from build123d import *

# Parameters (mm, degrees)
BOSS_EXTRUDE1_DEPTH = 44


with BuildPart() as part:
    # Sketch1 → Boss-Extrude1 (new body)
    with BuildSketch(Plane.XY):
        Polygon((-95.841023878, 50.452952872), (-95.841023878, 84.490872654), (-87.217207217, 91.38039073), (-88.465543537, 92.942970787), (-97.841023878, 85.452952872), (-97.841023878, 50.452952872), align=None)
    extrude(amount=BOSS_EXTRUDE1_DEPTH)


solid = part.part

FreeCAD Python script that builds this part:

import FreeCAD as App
import Part
import Sketcher

V = App.Vector
Q = App.Units.Quantity

doc = App.newDocument("Part")
params = doc.addObject("Spreadsheet::Sheet", "Params")
for row, (alias, value) in enumerate([
    ("sketch1_width", "2 mm"),
    ("sketch1_height", "35 mm"),
    ("sketch1_length", "2 mm"),
    ("sketch1_length2", "12 mm"),
    ("pad1_length", "44 mm"),
], start=1):
    params.set(f"A{row}", alias)
    params.set(f"B{row}", "=" + value)
    params.setAlias(f"B{row}", alias)

body = doc.addObject("PartDesign::Body", "Body")

# Sketch on XY plane
sketch1 = body.newObject("Sketcher::SketchObject", "Sketch")
sketch1.AttachmentSupport = (doc.getObject("XY_Plane"), [""])
sketch1.MapMode = "FlatFace"
sketch1.addGeometry(Part.LineSegment(V(-95.8, 50.5, 0), V(-95.8, 84.5, 0)), False)
sketch1.addGeometry(Part.LineSegment(V(-95.8, 84.5, 0), V(-87.2, 91.4, 0)), False)
sketch1.addGeometry(Part.LineSegment(V(-87.2, 91.4, 0), V(-88.5, 92.9, 0)), False)
sketch1.addGeometry(Part.LineSegment(V(-88.5, 92.9, 0), V(-97.8, 85.5, 0)), False)
sketch1.addGeometry(Part.LineSegment(V(-97.8, 85.5, 0), V(-97.8, 50.5, 0)), False)
sketch1.addGeometry(Part.LineSegment(V(-97.8, 50.5, 0), V(-95.8, 50.5, 0)), False)
sketch1.addConstraint(Sketcher.Constraint("Coincident", 0, 2, 1, 1))
sketch1.addConstraint(Sketcher.Constraint("Coincident", 1, 2, 2, 1))
sketch1.addConstraint(Sketcher.Constraint("Coincident", 2, 2, 3, 1))
sketch1.addConstraint(Sketcher.Constraint("Coincident", 3, 2, 4, 1))
sketch1.addConstraint(Sketcher.Constraint("Coincident", 4, 2, 5, 1))
sketch1.addConstraint(Sketcher.Constraint("Coincident", 5, 2, 0, 1))
sketch1.addConstraint(Sketcher.Constraint("Vertical", 0))
sketch1.addConstraint(Sketcher.Constraint("Vertical", 4))
sketch1.addConstraint(Sketcher.Constraint("Horizontal", 5))
sketch1.addConstraint(Sketcher.Constraint("Perpendicular", 1, 2))
sketch1.addConstraint(Sketcher.Constraint("Perpendicular", 2, 3))
sketch1.addConstraint(Sketcher.Constraint("DistanceX", 5, 1, 5, 2, Q("2 mm")))
sketch1.addConstraint(Sketcher.Constraint("DistanceY", 4, 2, 4, 1, Q("35 mm")))
sketch1.addConstraint(Sketcher.Constraint("Distance", 2, Q("2 mm")))
sketch1.addConstraint(Sketcher.Constraint("Distance", 3, Q("12 mm")))
sketch1.addConstraint(Sketcher.Constraint("DistanceY", 0, 1, 0, 2, Q("34.03792 mm")))
sketch1.addConstraint(Sketcher.Constraint("DistanceY", -1, 1, 1, 2, Q("91.380391 mm")))
sketch1.addConstraint(Sketcher.Constraint("DistanceX", 0, 2, -1, 1, Q("95.841024 mm")))
sketch1.setExpression("Constraints[11]", "Params.sketch1_width")
sketch1.setExpression("Constraints[12]", "Params.sketch1_height")
sketch1.setExpression("Constraints[13]", "Params.sketch1_length")
sketch1.setExpression("Constraints[14]", "Params.sketch1_length2")
pad1 = body.newObject("PartDesign::Pad", "Pad")
pad1.Profile = sketch1
pad1.setExpression("Length", "Params.pad1_length")

doc.recompute()
